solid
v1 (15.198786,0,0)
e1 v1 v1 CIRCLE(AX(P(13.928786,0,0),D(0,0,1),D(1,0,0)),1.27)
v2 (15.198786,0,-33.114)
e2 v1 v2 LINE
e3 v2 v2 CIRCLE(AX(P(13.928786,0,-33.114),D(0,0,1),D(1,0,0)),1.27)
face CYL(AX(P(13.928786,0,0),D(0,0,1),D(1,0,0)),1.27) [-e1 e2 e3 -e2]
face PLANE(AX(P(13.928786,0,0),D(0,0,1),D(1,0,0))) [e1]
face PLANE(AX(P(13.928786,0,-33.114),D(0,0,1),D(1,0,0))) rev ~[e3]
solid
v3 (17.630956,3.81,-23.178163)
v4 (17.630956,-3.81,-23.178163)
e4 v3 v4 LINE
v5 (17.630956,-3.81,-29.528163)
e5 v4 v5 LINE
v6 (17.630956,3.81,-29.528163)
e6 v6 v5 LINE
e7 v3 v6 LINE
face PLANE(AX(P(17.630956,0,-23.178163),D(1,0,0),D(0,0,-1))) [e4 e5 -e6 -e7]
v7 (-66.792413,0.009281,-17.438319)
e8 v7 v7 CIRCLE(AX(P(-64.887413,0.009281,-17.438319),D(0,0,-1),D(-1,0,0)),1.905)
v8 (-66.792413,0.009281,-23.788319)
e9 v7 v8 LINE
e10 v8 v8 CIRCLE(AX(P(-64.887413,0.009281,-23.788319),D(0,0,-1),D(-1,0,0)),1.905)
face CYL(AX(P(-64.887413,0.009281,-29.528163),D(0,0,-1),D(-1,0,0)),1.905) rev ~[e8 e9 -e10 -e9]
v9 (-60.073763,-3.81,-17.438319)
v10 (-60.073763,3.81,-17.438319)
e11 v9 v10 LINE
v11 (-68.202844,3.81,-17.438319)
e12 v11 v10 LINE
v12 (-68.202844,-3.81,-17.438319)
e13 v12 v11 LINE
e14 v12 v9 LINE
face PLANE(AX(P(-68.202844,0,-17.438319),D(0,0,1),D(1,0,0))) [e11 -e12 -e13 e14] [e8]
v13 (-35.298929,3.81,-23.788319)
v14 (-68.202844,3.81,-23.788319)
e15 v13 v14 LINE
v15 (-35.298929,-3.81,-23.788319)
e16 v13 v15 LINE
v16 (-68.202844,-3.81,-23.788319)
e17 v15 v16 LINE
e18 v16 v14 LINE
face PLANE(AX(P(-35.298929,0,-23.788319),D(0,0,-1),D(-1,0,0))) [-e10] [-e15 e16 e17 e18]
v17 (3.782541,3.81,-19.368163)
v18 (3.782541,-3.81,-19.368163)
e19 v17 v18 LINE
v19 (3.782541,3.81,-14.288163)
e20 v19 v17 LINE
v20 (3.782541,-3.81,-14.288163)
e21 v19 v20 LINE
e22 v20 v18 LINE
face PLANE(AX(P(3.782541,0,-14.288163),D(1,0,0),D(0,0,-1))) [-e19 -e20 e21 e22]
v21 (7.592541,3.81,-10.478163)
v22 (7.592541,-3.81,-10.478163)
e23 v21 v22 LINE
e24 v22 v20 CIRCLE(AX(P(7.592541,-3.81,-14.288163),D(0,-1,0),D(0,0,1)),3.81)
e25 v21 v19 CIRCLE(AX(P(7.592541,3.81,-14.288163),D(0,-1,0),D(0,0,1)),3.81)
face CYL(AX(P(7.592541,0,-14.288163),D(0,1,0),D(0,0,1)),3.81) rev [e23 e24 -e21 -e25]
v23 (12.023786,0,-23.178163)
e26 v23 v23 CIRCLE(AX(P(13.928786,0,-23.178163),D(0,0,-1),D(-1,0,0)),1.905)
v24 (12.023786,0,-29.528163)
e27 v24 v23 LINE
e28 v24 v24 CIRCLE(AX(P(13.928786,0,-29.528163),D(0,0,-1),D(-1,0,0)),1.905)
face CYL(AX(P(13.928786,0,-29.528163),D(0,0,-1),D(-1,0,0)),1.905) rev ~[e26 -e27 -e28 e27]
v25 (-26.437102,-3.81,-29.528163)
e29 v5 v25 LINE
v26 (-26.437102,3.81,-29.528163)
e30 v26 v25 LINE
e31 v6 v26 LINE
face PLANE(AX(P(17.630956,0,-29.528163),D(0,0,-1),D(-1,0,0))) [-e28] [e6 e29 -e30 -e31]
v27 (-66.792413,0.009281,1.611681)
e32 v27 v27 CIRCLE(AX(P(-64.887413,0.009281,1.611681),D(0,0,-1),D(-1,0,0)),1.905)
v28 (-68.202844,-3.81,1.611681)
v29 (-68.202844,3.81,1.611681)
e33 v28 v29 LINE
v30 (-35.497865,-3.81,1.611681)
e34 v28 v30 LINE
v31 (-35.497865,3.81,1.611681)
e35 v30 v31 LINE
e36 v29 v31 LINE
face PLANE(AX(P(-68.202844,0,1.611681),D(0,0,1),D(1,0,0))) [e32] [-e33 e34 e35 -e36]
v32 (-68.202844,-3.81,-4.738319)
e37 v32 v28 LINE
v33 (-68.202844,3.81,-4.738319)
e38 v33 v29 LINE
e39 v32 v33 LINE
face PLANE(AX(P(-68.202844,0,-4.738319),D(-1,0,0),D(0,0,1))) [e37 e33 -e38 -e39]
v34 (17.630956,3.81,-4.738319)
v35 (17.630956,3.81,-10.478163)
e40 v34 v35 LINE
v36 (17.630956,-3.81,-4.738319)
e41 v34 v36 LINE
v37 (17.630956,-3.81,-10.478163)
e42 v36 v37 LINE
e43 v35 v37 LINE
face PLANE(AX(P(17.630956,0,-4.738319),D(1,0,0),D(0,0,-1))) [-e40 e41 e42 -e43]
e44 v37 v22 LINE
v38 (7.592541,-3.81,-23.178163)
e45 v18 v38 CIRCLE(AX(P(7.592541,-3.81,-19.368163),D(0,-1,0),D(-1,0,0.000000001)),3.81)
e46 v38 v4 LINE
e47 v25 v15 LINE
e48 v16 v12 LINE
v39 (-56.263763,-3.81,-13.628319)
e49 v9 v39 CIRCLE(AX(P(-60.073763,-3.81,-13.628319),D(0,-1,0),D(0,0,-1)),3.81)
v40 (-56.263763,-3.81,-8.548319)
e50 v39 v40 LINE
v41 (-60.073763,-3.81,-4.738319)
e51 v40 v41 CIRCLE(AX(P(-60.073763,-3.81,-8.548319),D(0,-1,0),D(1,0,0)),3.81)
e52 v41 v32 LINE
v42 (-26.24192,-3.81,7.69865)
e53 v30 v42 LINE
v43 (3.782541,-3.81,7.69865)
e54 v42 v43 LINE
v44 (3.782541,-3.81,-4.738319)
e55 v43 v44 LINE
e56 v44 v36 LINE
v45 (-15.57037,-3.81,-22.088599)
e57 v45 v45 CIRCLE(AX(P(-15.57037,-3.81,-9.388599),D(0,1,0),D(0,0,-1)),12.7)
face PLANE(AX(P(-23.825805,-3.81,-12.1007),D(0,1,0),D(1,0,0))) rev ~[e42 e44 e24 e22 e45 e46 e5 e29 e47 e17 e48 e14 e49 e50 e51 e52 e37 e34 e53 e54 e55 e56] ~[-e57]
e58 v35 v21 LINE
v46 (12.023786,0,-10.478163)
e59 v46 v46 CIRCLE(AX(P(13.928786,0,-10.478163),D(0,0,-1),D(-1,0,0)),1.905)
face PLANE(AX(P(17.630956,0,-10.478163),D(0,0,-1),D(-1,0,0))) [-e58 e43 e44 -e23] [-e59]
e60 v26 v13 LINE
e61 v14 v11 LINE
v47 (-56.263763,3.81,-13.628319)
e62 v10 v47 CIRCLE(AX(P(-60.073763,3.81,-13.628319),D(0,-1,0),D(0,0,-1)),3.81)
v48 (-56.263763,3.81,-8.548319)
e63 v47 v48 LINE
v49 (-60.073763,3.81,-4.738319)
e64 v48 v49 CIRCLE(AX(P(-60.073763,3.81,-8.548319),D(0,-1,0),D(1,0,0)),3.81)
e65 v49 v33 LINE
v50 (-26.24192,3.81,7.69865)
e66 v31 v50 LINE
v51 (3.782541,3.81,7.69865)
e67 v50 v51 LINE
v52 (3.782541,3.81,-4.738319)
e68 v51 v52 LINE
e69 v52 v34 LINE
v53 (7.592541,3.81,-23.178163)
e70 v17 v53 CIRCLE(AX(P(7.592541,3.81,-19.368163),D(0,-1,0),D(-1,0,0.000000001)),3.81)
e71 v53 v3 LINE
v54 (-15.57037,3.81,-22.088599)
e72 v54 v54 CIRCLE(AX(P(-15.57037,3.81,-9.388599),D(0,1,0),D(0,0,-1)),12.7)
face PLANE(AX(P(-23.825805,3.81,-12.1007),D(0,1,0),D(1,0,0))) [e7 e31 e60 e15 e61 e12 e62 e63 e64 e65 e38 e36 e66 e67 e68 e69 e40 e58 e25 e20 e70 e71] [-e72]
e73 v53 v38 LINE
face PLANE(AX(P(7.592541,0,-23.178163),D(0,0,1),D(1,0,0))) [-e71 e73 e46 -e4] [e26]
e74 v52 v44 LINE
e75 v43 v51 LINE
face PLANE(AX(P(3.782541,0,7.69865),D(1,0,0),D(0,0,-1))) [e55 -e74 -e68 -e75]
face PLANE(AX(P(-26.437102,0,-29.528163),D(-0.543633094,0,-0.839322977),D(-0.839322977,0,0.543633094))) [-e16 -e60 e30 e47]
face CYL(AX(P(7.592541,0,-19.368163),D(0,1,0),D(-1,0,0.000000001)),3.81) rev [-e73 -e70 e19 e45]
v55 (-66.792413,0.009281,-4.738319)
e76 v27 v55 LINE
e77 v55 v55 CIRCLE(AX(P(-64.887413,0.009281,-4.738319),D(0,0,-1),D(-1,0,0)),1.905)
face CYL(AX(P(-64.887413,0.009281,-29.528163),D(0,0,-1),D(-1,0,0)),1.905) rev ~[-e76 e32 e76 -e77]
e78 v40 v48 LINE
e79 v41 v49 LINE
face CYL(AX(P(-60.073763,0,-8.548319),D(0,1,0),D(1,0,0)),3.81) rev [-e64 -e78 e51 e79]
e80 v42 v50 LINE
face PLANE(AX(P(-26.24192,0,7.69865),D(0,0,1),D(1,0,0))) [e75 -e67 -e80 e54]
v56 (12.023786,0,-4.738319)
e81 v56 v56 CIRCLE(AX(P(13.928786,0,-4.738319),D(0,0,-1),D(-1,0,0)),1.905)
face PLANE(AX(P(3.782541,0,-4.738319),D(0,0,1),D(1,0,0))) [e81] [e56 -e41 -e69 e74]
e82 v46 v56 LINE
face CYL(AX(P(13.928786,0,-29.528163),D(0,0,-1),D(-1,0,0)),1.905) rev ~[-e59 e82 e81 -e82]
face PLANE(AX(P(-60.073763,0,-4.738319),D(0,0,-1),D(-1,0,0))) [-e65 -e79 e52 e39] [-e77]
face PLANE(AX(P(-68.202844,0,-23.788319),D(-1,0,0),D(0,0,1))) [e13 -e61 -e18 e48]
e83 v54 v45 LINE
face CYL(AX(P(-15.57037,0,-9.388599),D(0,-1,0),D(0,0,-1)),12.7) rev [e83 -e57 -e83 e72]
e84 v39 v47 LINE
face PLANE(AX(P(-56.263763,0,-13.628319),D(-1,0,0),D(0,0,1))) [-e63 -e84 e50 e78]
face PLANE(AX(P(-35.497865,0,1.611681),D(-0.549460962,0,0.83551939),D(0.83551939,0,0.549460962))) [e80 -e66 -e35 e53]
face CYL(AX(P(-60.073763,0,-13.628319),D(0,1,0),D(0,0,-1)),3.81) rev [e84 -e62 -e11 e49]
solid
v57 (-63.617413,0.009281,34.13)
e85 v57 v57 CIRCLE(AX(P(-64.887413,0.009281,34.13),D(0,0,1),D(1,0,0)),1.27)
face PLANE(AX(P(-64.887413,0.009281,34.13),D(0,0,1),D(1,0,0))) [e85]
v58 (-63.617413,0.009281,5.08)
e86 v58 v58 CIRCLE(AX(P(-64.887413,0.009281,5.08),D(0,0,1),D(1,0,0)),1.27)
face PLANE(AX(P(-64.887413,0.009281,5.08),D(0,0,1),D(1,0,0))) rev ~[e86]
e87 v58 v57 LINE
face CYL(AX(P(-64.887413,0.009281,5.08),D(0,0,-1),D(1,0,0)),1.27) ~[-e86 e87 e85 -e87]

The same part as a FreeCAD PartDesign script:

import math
import FreeCAD as App
import Part
import Sketcher
from FreeCAD import Vector
Q = App.Units.Quantity

doc = App.newDocument("Part")
body = doc.addObject("PartDesign::Body", "Body")

# Sketch on XZ plane
sketch1 = body.newObject("Sketcher::SketchObject", "Sketch")
sketch1.AttachmentSupport = (doc.getObject("XZ_Plane"), [""])
sketch1.MapMode = "FlatFace"
sketch1.addGeometry([
    Part.LineSegment(Vector(-35.3, -23.8, 0), Vector(-68.2, -23.8, 0)),  # 0
    Part.LineSegment(Vector(-68.2, -23.8, 0), Vector(-68.2, -17.4, 0)),  # 1
    Part.LineSegment(Vector(-68.2, -17.4, 0), Vector(-60.1, -17.4, 0)),  # 2
    Part.ArcOfCircle(Part.Circle(Vector(-60.1, -13.6, 0), Vector(0, 0, 1), 3.8), math.radians(-90), math.radians(0)),  # 3
    Part.LineSegment(Vector(-56.3, -13.6, 0), Vector(-56.3, -8.5, 0)),  # 4
    Part.ArcOfCircle(Part.Circle(Vector(-60.1, -8.5, 0), Vector(0, 0, 1), 3.8), math.radians(0), math.radians(90)),  # 5
    Part.LineSegment(Vector(-60.1, -4.7, 0), Vector(-68.2, -4.7, 0)),  # 6
    Part.LineSegment(Vector(-68.2, -4.7, 0), Vector(-68.2, 1.6, 0)),  # 7
    Part.LineSegment(Vector(-68.2, 1.6, 0), Vector(-35.5, 1.6, 0)),  # 8
    Part.LineSegment(Vector(-35.5, 1.6, 0), Vector(-26.2, 7.7, 0)),  # 9
    Part.LineSegment(Vector(-26.2, 7.7, 0), Vector(3.8, 7.7, 0)),  # 10
    Part.LineSegment(Vector(3.8, 7.7, 0), Vector(3.8, -4.7, 0)),  # 11
    Part.LineSegment(Vector(3.8, -4.7, 0), Vector(17.6, -4.7, 0)),  # 12
    Part.LineSegment(Vector(17.6, -4.7, 0), Vector(17.6, -10.5, 0)),  # 13
    Part.LineSegment(Vector(17.6, -10.5, 0), Vector(7.6, -10.5, 0)),  # 14
    Part.ArcOfCircle(Part.Circle(Vector(7.6, -14.3, 0), Vector(0, 0, 1), 3.8), math.radians(90), math.radians(180)),  # 15
    Part.LineSegment(Vector(3.8, -14.3, 0), Vector(3.8, -19.4, 0)),  # 16
    Part.ArcOfCircle(Part.Circle(Vector(7.6, -19.4, 0), Vector(0, 0, 1), 3.8), math.radians(180), math.radians(270)),  # 17
    Part.LineSegment(Vector(7.6, -23.2, 0), Vector(17.6, -23.2, 0)),  # 18
    Part.LineSegment(Vector(17.6, -23.2, 0), Vector(17.6, -29.5, 0)),  # 19
    Part.LineSegment(Vector(17.6, -29.5, 0), Vector(-26.4, -29.5, 0)),  # 20
    Part.LineSegment(Vector(-26.4, -29.5, 0), Vector(-35.3, -23.8, 0)),  # 21
    Part.Circle(Vector(-15.6, -9.4, 0), Vector(0, 0, 1), 12.7),  # 22
], False)
sketch1.addConstraint([
    Sketcher.Constraint("Coincident", 0, 2, 1, 1),
    Sketcher.Constraint("Coincident", 1, 2, 2, 1),
    Sketcher.Constraint("Tangent", 2, 2, 3, 1),
    Sketcher.Constraint("Tangent", 3, 2, 4, 1),
    Sketcher.Constraint("Tangent", 4, 2, 5, 1),
    Sketcher.Constraint("Tangent", 5, 2, 6, 1),
    Sketcher.Constraint("Coincident", 6, 2, 7, 1),
    Sketcher.Constraint("Coincident", 7, 2, 8, 1),
    Sketcher.Constraint("Coincident", 8, 2, 9, 1),
    Sketcher.Constraint("Coincident", 9, 2, 10, 1),
    Sketcher.Constraint("Coincident", 10, 2, 11, 1),
    Sketcher.Constraint("Coincident", 11, 2, 12, 1),
    Sketcher.Constraint("Coincident", 12, 2, 13, 1),
    Sketcher.Constraint("Coincident", 13, 2, 14, 1),
    Sketcher.Constraint("Tangent", 14, 2, 15, 1),
    Sketcher.Constraint("Tangent", 15, 2, 16, 1),
    Sketcher.Constraint("Tangent", 16, 2, 17, 1),
    Sketcher.Constraint("Tangent", 17, 2, 18, 1),
    Sketcher.Constraint("Coincident", 18, 2, 19, 1),
    Sketcher.Constraint("Coincident", 19, 2, 20, 1),
    Sketcher.Constraint("Coincident", 20, 2, 21, 1),
    Sketcher.Constraint("Coincident", 21, 2, 0, 1),
    Sketcher.Constraint("Horizontal", 0),
    Sketcher.Constraint("Vertical", 1),
    Sketcher.Constraint("Horizontal", 2),
    Sketcher.Constraint("Vertical", 4),
    Sketcher.Constraint("Horizontal", 6),
    Sketcher.Constraint("Vertical", 7),
    Sketcher.Constraint("Horizontal", 8),
    Sketcher.Constraint("Horizontal", 10),
    Sketcher.Constraint("Vertical", 11),
    Sketcher.Constraint("Horizontal", 12),
    Sketcher.Constraint("Vertical", 13),
    Sketcher.Constraint("Horizontal", 14),
    Sketcher.Constraint("Vertical", 16),
    Sketcher.Constraint("Horizontal", 18),
    Sketcher.Constraint("Vertical", 19),
    Sketcher.Constraint("Horizontal", 20),
    Sketcher.Constraint("Equal", 3, 5),
    Sketcher.Constraint("Equal", 5, 15),
    Sketcher.Constraint("Equal", 15, 17),
    Sketcher.Constraint("Horizontal", 6, 2, 11, 2),
    Sketcher.Constraint("Vertical", 1, 2, 6, 2),
    Sketcher.Constraint("Vertical", 11, 2, 15, 2),
    Sketcher.Constraint("Vertical", 13, 2, 18, 2),
    Sketcher.Constraint("Equal", 1, 7),
    Sketcher.Constraint("Equal", 4, 16),
    Sketcher.Constraint("Equal", 7, 19),
    Sketcher.Constraint("Diameter", 22, Q("1 in")),
    Sketcher.Constraint("Radius", 3, Q("0.15 in")),
    Sketcher.Constraint("DistanceY", 4, 1, 4, 2, Q("0.2 in")),
    Sketcher.Constraint("DistanceY", 21, 2, 8, 2, Q("1 in")),
    Sketcher.Constraint("DistanceX", 2, 1, 2, 2, 8.129081),
    Sketcher.Constraint("DistanceX", 8, 1, 8, 2, 32.704979),
    Sketcher.Constraint("DistanceX", 10, 1, 10, 2, 30.024461),
    Sketcher.Constraint("DistanceX", 20, 2, 20, 1, 44.068058),
    Sketcher.Constraint("DistanceY", 11, 2, 11, 1, 12.436969),
    Sketcher.Constraint("DistanceY", 22, 3, -1, 1, 9.388599),
    Sketcher.Constraint("DistanceX", 0, 2, 0, 1, 32.903915),
    Sketcher.Constraint("DistanceX", 12, 1, 12, 2, 13.848415),
    Sketcher.Constraint("DistanceY", 13, 2, 13, 1, 5.739844),
    Sketcher.Constraint("DistanceY", 3, 3, -1, 1, 13.628319),
    Sketcher.Constraint("DistanceX", -1, 1, 15, 3, 7.592541),
    Sketcher.Constraint("DistanceX", 22, 3, -1, 1, 15.57037),
    Sketcher.Constraint("DistanceX", 21, 2, -1, 1, 35.298929),
])
pad1 = body.newObject("PartDesign::Pad", "Pad")
pad1.Profile = sketch1
pad1.Length = Q("0.3 in")
pad1.Midplane = True

# Sketch on XY plane
sketch2 = body.newObject("Sketcher::SketchObject", "Sketch001")
sketch2.AttachmentSupport = (doc.getObject("XY_Plane"), [""])
sketch2.MapMode = "FlatFace"
sketch2.AttachmentOffset = App.Placement(Vector(0, 0, -29.528163), App.Rotation())
sketch2.addGeometry([
    Part.Circle(Vector(13.9, 0, 0), Vector(0, 0, 1), 1.9),
    Part.Circle(Vector(-64.9, 0, 0), Vector(0, 0, 1), 1.9),
], False)
sketch2.addConstraint([
    Sketcher.Constraint("Equal", 0, 1),
    Sketcher.Constraint("PointOnObject", 0, 3, -1),
    Sketcher.Constraint("Diameter", 0, Q("0.15 in")),
    Sketcher.Constraint("DistanceX", 1, 3, 0, 3, Q("3.103 in")),
    Sketcher.Constraint("DistanceY", -1, 1, 1, 3, 0.009281),
    Sketcher.Constraint("DistanceX", -1, 1, 0, 3, 13.928786),
])
pocket1 = body.newObject("PartDesign::Pocket", "Pocket")
pocket1.Profile = sketch2
pocket1.Length = Q("7.225 in")
pocket1.Midplane = True
body2 = doc.addObject("PartDesign::Body", "Body001")

# Sketch on XY plane
sketch3 = body2.newObject("Sketcher::SketchObject", "Sketch002")
sketch3.AttachmentSupport = (doc.getObject("XY_Plane001"), [""])
sketch3.MapMode = "FlatFace"
sketch3.addGeometry(Part.Circle(Vector(13.9, 0, 0), Vector(0, 0, 1), 1.3), False)
sketch3.addConstraint([
    Sketcher.Constraint("PointOnObject", 0, 3, -1),
    Sketcher.Constraint("Diameter", 0, Q("0.1 in")),
    Sketcher.Constraint("DistanceX", -1, 1, 0, 3, 13.928786),
])
pad2 = body2.newObject("PartDesign::Pad", "Pad001")
pad2.Profile = sketch3
pad2.Length = 33.114
pad2.Reversed = True
body3 = doc.addObject("PartDesign::Body", "Body002")

# Sketch on XY plane
sketch4 = body3.newObject("Sketcher::SketchObject", "Sketch003")
sketch4.AttachmentSupport = (doc.getObject("XY_Plane002"), [""])
sketch4.MapMode = "FlatFace"
sketch4.AttachmentOffset = App.Placement(Vector(0, 0, 0.2 * 25.4), App.Rotation())
sketch4.addGeometry(Part.Circle(Vector(-64.9, 0, 0), Vector(0, 0, 1), 1.3), False)
sketch4.addConstraint([
    Sketcher.Constraint("Diameter", 0, Q("0.1 in")),
    Sketcher.Constraint("DistanceY", -1, 1, 0, 3, 0.009281),
    Sketcher.Constraint("DistanceX", 0, 3, -1, 1, 64.887413),
])
pad3 = body3.newObject("PartDesign::Pad", "Pad002")
pad3.Profile = sketch4
pad3.Length = 29.05

doc.recompute()
